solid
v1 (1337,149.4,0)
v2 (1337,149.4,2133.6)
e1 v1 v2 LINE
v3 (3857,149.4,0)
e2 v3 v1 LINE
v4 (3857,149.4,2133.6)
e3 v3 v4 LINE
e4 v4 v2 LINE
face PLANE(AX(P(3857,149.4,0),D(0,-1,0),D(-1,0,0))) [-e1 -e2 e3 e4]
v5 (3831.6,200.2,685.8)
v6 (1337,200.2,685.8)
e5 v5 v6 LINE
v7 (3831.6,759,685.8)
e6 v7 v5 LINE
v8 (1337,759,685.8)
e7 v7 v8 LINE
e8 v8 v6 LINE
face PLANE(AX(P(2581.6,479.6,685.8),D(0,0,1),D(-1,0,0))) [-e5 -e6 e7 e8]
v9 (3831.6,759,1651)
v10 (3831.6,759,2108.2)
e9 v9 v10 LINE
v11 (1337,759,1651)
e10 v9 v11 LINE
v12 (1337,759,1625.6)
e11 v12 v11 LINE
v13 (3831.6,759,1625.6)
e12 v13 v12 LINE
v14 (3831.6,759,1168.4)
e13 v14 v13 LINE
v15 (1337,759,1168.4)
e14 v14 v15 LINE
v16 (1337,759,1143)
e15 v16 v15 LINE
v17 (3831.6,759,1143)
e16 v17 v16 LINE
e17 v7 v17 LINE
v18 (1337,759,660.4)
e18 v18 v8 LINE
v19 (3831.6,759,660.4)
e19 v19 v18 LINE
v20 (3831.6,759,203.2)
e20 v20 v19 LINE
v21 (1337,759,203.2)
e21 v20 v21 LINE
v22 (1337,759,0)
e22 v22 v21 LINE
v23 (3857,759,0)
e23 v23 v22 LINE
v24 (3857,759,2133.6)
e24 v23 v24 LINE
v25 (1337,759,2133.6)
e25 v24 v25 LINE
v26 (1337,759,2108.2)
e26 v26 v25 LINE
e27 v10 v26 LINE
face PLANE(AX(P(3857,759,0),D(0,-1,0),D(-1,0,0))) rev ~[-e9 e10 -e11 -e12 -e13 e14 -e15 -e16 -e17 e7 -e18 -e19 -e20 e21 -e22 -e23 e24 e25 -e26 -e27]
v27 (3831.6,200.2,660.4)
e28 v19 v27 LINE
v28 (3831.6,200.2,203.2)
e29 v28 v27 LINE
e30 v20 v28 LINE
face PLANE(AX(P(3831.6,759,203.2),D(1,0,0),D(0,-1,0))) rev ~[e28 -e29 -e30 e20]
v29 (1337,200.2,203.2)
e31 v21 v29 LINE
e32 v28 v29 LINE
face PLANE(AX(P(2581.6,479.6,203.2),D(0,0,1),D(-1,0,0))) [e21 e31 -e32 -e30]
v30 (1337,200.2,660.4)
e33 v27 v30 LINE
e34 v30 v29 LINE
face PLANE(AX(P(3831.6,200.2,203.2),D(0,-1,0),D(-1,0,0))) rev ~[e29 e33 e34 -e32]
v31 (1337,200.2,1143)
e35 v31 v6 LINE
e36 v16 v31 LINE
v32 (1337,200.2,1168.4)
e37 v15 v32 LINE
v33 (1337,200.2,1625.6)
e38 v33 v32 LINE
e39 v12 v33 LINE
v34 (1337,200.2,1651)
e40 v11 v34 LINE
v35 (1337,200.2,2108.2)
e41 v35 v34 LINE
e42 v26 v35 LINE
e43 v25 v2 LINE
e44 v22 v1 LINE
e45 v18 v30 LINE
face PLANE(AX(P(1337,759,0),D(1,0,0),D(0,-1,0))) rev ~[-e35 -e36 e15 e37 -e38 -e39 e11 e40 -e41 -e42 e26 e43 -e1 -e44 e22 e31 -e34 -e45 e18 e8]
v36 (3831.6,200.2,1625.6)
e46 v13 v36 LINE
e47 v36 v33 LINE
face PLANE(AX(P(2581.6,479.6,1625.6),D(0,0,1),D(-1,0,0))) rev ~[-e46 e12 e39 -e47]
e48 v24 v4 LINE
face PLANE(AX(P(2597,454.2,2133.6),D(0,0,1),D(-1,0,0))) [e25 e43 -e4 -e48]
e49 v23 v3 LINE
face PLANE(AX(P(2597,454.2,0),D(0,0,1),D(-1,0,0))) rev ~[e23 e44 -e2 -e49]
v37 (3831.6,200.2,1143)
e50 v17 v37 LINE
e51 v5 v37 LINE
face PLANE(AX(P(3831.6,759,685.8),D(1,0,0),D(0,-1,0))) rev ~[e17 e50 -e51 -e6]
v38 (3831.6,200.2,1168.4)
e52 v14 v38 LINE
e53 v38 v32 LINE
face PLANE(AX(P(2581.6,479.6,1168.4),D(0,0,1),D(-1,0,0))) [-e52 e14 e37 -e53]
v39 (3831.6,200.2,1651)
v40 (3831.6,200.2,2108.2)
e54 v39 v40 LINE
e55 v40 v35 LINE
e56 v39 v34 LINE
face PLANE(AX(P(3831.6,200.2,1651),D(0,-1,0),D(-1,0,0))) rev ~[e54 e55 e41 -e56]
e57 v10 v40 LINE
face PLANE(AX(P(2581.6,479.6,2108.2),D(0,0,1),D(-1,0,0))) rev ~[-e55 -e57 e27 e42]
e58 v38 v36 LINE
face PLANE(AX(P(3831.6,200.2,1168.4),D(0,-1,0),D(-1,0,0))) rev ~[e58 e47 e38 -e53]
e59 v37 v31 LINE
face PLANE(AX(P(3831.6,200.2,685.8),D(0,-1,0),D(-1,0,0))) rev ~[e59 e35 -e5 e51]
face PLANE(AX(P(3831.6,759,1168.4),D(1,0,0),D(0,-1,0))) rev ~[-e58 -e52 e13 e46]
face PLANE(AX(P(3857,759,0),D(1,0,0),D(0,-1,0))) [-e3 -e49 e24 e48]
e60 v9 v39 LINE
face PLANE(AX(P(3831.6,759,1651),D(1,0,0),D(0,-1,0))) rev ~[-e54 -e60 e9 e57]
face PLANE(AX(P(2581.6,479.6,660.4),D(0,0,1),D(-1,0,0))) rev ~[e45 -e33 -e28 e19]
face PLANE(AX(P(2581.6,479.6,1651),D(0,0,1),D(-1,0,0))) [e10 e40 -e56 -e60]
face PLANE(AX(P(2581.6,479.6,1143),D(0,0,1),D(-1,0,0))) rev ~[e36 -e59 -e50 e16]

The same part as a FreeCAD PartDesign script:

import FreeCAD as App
import Part
import Sketcher
from FreeCAD import Vector
Q = App.Units.Quantity

doc = App.newDocument("Part")
body = doc.addObject("PartDesign::Body", "Body")

# Sketch on XY plane
sketch1 = doc.addObject("Sketcher::SketchObject", "Sketch")
body.addObject(sketch1)
sketch1.AttachmentSupport = (doc.XY_Plane, [""])
sketch1.MapMode = "FlatFace"
sketch1.AttachmentOffset = App.Placement(Vector(0, 0, 65 * 25.4), App.Rotation())
sketch1.addGeometry([
    Part.LineSegment(Vector(25, 559, 0), Vector(25, 0, 0)),
    Part.LineSegment(Vector(25, 0, 0), Vector(2525, 0, 0)),
    Part.LineSegment(Vector(2525, 0, 0), Vector(2525, 559, 0)),
    Part.LineSegment(Vector(2525, 559, 0), Vector(25, 559, 0)),
], False)
sketch1.addConstraint([
    Sketcher.Constraint("Coincident", 0, 2, 1, 1),
    Sketcher.Constraint("Coincident", 1, 2, 2, 1),
    Sketcher.Constraint("Coincident", 2, 2, 3, 1),
    Sketcher.Constraint("Coincident", 3, 2, 0, 1),
    Sketcher.Constraint("Vertical", 0),
    Sketcher.Constraint("Horizontal", 1),
    Sketcher.Constraint("Vertical", 2),
    Sketcher.Constraint("Horizontal", 3),
    Sketcher.Constraint("PointOnObject", 0, 2, -1),
    Sketcher.Constraint("DistanceY", 0, 2, 0, 1, Q("22 in")),
    Sketcher.Constraint("DistanceX", -1, 1, 0, 2, Q("1 in")),
    Sketcher.Constraint("DistanceX", 1, 1, 1, 2, Q("2500 mm")),
])
pad1 = doc.addObject("PartDesign::Pad", "Pad")
body.addObject(pad1)
pad1.Profile = sketch1
pad1.Length = Q("18 in")
body2 = doc.addObject("PartDesign::Body", "Body001")

# Sketch on XY plane
sketch2 = doc.addObject("Sketcher::SketchObject", "Sketch001")
body2.addObject(sketch2)
sketch2.AttachmentSupport = (doc.getObject("XY_Plane001"), [""])
sketch2.MapMode = "FlatFace"
sketch2.AttachmentOffset = App.Placement(Vector(0, 0, 27 * 25.4), App.Rotation())
sketch2.addGeometry([
    Part.LineSegment(Vector(25, 559, 0), Vector(25, 0, 0)),
    Part.LineSegment(Vector(25, 0, 0), Vector(2525, 0, 0)),
    Part.LineSegment(Vector(2525, 0, 0), Vector(2525, 559, 0)),
    Part.LineSegment(Vector(2525, 559, 0), Vector(25, 559, 0)),
], False)
sketch2.addConstraint([
    Sketcher.Constraint("Coincident", 0, 2, 1, 1),
    Sketcher.Constraint("Coincident", 1, 2, 2, 1),
    Sketcher.Constraint("Coincident", 2, 2, 3, 1),
    Sketcher.Constraint("Coincident", 3, 2, 0, 1),
    Sketcher.Constraint("Vertical", 0),
    Sketcher.Constraint("Horizontal", 1),
    Sketcher.Constraint("Vertical", 2),
    Sketcher.Constraint("Horizontal", 3),
    Sketcher.Constraint("PointOnObject", 0, 2, -1),
    Sketcher.Constraint("DistanceY", 0, 2, 0, 1, Q("22 in")),
    Sketcher.Constraint("DistanceX", -1, 1, 0, 2, Q("1 in")),
    Sketcher.Constraint("DistanceX", 1, 1, 1, 2, Q("2500 mm")),
])
pad2 = doc.addObject("PartDesign::Pad", "Pad001")
body2.addObject(pad2)
pad2.Profile = sketch2
pad2.Length = Q("18 in")
body3 = doc.addObject("PartDesign::Body", "Body002")

# Sketch on XY plane
sketch3 = doc.addObject("Sketcher::SketchObject", "Sketch002")
body3.addObject(sketch3)
sketch3.AttachmentSupport = (doc.getObject("XY_Plane002"), [""])
sketch3.MapMode = "FlatFace"
sketch3.AttachmentOffset = App.Placement(Vector(0, 0, 8 * 25.4), App.Rotation())
sketch3.addGeometry([
    Part.LineSegment(Vector(25, 559, 0), Vector(25, 0, 0)),
    Part.LineSegment(Vector(25, 0, 0), Vector(2525, 0, 0)),
    Part.LineSegment(Vector(2525, 0, 0), Vector(2525, 559, 0)),
    Part.LineSegment(Vector(2525, 559, 0), Vector(25, 559, 0)),
], False)
sketch3.addConstraint([
    Sketcher.Constraint("Coincident", 0, 2, 1, 1),
    Sketcher.Constraint("Coincident", 1, 2, 2, 1),
    Sketcher.Constraint("Coincident", 2, 2, 3, 1),
    Sketcher.Constraint("Coincident", 3, 2, 0, 1),
    Sketcher.Constraint("Vertical", 0),
    Sketcher.Constraint("Horizontal", 1),
    Sketcher.Constraint("Vertical", 2),
    Sketcher.Constraint("Horizontal", 3),
    Sketcher.Constraint("PointOnObject", 0, 2, -1),
    Sketcher.Constraint("DistanceY", 0, 2, 0, 1, Q("22 in")),
    Sketcher.Constraint("DistanceX", -1, 1, 0, 2, Q("1 in")),
    Sketcher.Constraint("DistanceX", 1, 1, 1, 2, Q("2500 mm")),
])
pad3 = doc.addObject("PartDesign::Pad", "Pad002")
body3.addObject(pad3)
pad3.Profile = sketch3
pad3.Length = Q("18 in")
body4 = doc.addObject("PartDesign::Body", "Body003")

# Sketch on XY plane
sketch4 = doc.addObject("Sketcher::SketchObject", "Sketch003")
body4.addObject(sketch4)
sketch4.AttachmentSupport = (doc.getObject("XY_Plane003"), [""])
sketch4.MapMode = "FlatFace"
sketch4.AttachmentOffset = App.Placement(Vector(0, 0, 46 * 25.4), App.Rotation())
sketch4.addGeometry([
    Part.LineSegment(Vector(25, 559, 0), Vector(25, 0, 0)),
    Part.LineSegment(Vector(25, 0, 0), Vector(2525, 0, 0)),
    Part.LineSegment(Vector(2525, 0, 0), Vector(2525, 559, 0)),
    Part.LineSegment(Vector(2525, 559, 0), Vector(25, 559, 0)),
], False)
sketch4.addConstraint([
    Sketcher.Constraint("Coincident", 0, 2, 1, 1),
    Sketcher.Constraint("Coincident", 1, 2, 2, 1),
    Sketcher.Constraint("Coincident", 2, 2, 3, 1),
    Sketcher.Constraint("Coincident", 3, 2, 0, 1),
    Sketcher.Constraint("Vertical", 0),
    Sketcher.Constraint("Horizontal", 1),
    Sketcher.Constraint("Vertical", 2),
    Sketcher.Constraint("Horizontal", 3),
    Sketcher.Constraint("PointOnObject", 0, 2, -1),
    Sketcher.Constraint("DistanceY", 0, 2, 0, 1, Q("22 in")),
    Sketcher.Constraint("DistanceX", -1, 1, 0, 2, Q("1 in")),
    Sketcher.Constraint("DistanceX", 1, 1, 1, 2, Q("2500 mm")),
])
pad4 = doc.addObject("PartDesign::Pad", "Pad003")
body4.addObject(pad4)
pad4.Profile = sketch4
pad4.Length = Q("18 in")
body5 = doc.addObject("PartDesign::Body", "Body004")

# Sketch on XY plane
sketch5 = doc.addObject("Sketcher::SketchObject", "Sketch004")
body5.addObject(sketch5)
sketch5.AttachmentSupport = (doc.getObject("XY_Plane004"), [""])
sketch5.MapMode = "FlatFace"
sketch5.addGeometry([
    Part.LineSegment(Vector(0, 610, 0), Vector(0, 0, 0)),
    Part.LineSegment(Vector(0, 0, 0), Vector(2520, 0, 0)),
    Part.LineSegment(Vector(2520, 0, 0), Vector(2520, 610, 0)),
    Part.LineSegment(Vector(2520, 610, 0), Vector(0, 610, 0)),
], False)
sketch5.addConstraint([
    Sketcher.Constraint("Coincident", 0, 2, 1, 1),
    Sketcher.Constraint("Coincident", 1, 2, 2, 1),
    Sketcher.Constraint("Coincident", 2, 2, 3, 1),
    Sketcher.Constraint("Coincident", 3, 2, 0, 1),
    Sketcher.Constraint("Vertical", 0),
    Sketcher.Constraint("Horizontal", 1),
    Sketcher.Constraint("Vertical", 2),
    Sketcher.Constraint("Horizontal", 3),
    Sketcher.Constraint("Coincident", 0, 2, -1, 1),
    Sketcher.Constraint("DistanceY", 0, 2, 0, 1, Q("24 in")),
    Sketcher.Constraint("DistanceX", 1, 1, 1, 2, Q("2520 mm")),
])
pad5 = doc.addObject("PartDesign::Pad", "Pad004")
body5.addObject(pad5)
pad5.Profile = sketch5
pad5.Length = Q("84 in")
doc.recompute()

boolean = doc.addObject("PartDesign::Boolean", "Boolean")
body5.addObject(boolean)
boolean.Type = "Cut"
boolean.addObjects([body4])
doc.recompute()

boolean2 = doc.addObject("PartDesign::Boolean", "Boolean001")
body5.addObject(boolean2)
boolean2.Type = "Cut"
boolean2.addObjects([body3])
doc.recompute()

boolean3 = doc.addObject("PartDesign::Boolean", "Boolean002")
body5.addObject(boolean3)
boolean3.Type = "Cut"
boolean3.addObjects([body2])
doc.recompute()

boolean4 = doc.addObject("PartDesign::Boolean", "Boolean003")
body5.addObject(boolean4)
boolean4.Type = "Cut"
boolean4.addObjects([body])
body6 = doc.addObject("PartDesign::Body", "Body005")
doc.recompute()

body5.Placement = App.Placement(Vector(3857, 759, 0), App.Rotation(Vector(0, 0, 1), 180))
boolean5 = doc.addObject("PartDesign::Boolean", "Boolean004")
body6.addObject(boolean5)
boolean5.Type = "Fuse"
boolean5.addObjects([body5])

doc.recompute()
